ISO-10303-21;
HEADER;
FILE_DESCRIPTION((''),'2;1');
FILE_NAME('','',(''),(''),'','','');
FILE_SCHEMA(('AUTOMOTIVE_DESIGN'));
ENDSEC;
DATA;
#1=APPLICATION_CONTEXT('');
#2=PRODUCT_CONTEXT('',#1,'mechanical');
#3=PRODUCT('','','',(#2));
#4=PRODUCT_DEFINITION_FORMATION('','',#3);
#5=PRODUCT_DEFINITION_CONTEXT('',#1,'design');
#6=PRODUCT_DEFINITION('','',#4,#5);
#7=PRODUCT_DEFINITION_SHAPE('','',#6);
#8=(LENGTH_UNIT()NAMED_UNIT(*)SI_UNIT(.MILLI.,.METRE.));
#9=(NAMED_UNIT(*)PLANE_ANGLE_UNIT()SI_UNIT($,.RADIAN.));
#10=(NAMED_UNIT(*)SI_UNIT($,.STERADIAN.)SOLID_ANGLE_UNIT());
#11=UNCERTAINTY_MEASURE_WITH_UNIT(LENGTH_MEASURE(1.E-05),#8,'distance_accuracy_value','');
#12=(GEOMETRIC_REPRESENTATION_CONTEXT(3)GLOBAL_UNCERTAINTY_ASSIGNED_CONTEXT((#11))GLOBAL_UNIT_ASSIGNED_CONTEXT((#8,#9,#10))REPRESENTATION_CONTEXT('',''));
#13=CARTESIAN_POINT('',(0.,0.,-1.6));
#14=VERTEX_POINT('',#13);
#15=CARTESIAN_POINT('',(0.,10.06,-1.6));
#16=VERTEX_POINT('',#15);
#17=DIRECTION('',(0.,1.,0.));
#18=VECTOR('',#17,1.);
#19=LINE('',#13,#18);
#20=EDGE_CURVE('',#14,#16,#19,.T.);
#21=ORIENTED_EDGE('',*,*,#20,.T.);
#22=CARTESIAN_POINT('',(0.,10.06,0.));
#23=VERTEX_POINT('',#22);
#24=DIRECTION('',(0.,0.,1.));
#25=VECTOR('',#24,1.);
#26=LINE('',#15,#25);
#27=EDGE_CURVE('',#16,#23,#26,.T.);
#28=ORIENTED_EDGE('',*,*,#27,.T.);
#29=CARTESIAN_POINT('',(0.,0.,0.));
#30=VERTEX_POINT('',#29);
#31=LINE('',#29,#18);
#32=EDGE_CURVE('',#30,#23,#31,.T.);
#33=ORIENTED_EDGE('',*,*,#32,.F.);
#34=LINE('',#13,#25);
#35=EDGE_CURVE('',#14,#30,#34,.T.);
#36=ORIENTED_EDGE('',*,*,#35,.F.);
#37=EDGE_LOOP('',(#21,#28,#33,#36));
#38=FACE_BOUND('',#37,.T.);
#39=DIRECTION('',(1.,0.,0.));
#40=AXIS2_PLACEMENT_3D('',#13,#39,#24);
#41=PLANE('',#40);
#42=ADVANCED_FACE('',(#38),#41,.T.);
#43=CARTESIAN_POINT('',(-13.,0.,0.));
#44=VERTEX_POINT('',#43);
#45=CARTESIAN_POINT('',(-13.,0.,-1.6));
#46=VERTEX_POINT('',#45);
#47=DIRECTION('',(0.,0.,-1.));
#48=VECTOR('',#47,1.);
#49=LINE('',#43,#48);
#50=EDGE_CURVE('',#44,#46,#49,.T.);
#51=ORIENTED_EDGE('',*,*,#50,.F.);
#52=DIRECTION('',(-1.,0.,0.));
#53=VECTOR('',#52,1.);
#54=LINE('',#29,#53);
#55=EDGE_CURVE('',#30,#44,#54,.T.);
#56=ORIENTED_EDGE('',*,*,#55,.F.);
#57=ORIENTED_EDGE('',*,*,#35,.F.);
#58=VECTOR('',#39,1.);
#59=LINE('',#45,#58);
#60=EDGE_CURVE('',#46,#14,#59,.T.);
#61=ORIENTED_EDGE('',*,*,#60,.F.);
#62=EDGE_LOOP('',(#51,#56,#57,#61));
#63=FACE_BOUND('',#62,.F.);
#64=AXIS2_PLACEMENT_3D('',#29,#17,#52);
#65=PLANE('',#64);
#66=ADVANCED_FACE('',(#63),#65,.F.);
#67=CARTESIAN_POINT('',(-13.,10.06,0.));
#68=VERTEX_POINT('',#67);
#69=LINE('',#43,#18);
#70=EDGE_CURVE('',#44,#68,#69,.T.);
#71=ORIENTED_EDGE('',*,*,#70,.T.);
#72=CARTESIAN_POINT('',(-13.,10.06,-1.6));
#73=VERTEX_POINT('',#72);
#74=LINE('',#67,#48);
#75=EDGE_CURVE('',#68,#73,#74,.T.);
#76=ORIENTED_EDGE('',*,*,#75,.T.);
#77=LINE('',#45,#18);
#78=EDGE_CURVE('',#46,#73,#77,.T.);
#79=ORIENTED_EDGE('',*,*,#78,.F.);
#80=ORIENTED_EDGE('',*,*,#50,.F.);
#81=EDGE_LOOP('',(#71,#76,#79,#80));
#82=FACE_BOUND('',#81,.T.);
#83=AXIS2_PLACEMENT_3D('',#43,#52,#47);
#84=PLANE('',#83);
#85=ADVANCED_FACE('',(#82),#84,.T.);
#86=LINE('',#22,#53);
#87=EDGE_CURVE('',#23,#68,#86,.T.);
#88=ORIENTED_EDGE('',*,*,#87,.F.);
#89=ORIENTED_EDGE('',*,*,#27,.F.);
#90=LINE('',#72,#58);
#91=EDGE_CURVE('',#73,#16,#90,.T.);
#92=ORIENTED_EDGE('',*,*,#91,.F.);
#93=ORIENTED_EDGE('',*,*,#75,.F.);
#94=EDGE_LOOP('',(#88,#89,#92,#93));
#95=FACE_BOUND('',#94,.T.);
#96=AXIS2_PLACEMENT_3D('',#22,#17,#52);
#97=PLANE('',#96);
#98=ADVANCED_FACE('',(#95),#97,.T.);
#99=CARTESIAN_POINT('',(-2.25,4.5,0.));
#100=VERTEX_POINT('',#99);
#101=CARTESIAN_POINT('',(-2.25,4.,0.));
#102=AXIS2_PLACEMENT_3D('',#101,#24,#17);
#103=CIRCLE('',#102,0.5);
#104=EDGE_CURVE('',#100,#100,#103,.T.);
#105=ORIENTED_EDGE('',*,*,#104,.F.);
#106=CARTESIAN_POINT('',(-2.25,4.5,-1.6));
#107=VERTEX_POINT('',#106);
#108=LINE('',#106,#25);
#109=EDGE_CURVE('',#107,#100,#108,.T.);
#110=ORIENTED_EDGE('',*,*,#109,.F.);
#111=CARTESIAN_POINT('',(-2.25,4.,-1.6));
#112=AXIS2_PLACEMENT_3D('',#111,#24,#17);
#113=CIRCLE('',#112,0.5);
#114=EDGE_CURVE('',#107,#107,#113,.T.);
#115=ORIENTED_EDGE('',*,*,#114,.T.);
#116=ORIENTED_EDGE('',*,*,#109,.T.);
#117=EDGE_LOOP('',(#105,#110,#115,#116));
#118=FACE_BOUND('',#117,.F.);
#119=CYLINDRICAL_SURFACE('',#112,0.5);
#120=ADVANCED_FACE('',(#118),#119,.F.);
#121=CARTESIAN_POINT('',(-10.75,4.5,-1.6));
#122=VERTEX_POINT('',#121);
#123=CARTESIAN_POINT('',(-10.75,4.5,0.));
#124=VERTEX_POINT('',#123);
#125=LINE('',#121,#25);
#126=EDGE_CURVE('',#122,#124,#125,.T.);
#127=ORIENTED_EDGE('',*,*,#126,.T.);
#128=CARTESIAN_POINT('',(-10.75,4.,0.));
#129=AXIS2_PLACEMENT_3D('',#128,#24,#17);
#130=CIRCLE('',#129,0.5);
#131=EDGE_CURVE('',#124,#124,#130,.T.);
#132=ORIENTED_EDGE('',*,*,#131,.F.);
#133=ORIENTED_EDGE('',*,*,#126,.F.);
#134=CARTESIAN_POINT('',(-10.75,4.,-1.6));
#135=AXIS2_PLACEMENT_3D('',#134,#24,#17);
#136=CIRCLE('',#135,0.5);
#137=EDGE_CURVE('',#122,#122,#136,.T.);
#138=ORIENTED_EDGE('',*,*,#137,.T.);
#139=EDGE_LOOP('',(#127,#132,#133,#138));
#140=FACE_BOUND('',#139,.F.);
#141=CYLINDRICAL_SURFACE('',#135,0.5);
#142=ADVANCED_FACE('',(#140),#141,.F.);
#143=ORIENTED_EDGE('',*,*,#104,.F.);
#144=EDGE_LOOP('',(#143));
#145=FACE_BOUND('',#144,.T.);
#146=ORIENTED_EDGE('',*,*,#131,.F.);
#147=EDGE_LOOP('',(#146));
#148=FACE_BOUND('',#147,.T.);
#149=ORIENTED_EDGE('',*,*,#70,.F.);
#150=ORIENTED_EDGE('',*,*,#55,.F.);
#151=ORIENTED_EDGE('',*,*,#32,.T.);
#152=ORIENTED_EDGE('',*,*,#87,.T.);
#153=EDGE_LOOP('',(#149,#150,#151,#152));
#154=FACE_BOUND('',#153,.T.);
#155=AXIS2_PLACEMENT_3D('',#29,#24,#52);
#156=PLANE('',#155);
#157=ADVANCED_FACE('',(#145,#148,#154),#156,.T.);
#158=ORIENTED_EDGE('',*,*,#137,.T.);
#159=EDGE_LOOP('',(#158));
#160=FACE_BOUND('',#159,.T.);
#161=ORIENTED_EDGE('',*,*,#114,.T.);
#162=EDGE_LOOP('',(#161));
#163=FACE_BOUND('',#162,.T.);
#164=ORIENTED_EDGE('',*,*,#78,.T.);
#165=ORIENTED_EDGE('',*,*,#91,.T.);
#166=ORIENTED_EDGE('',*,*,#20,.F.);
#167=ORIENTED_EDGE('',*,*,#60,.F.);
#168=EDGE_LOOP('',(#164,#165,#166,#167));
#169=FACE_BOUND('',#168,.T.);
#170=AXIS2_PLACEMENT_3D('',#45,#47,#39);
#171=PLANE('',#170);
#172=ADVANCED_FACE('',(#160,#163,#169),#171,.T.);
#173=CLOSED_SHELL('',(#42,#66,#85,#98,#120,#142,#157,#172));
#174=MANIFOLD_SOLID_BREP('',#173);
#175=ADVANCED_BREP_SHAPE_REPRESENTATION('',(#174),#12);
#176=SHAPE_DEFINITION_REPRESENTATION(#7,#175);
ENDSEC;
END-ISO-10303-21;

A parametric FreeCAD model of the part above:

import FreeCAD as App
import Part
import Sketcher

doc = App.newDocument("Part")
params = doc.addObject("Spreadsheet::Sheet", "Params")
for row, (alias, value) in enumerate([
    ("sketch1_width", "13 mm"),
    ("sketch1_height", "1.6 mm"),
    ("pad1_length", "10.06 mm"),
    ("sketch2_diameter", "1 mm"),
    ("hole_diameter", "1 mm"),
], start=1):
    params.set(f"A{row}", alias)
    params.set(f"B{row}", "=" + value)
    params.setAlias(f"B{row}", alias)

body = doc.addObject("PartDesign::Body", "Body")

sketch1 = body.newObject("Sketcher::SketchObject", "Sketch")
sketch1.AttachmentSupport = (doc.getObject("XZ_Plane"), [""])
sketch1.MapMode = "FlatFace"
sketch1.addGeometry(Part.LineSegment(App.Vector(-13, 0, 0), App.Vector(0, 0, 0)), False)
sketch1.addGeometry(Part.LineSegment(App.Vector(0, 0, 0), App.Vector(0, -1.6, 0)), False)
sketch1.addGeometry(Part.LineSegment(App.Vector(0, -1.6, 0), App.Vector(-13, -1.6, 0)), False)
sketch1.addGeometry(Part.LineSegment(App.Vector(-13, -1.6, 0), App.Vector(-13, 0, 0)), False)
sketch1.addConstraint(Sketcher.Constraint("Coincident", 0, 2, 1, 1))
sketch1.addConstraint(Sketcher.Constraint("Coincident", 1, 2, 2, 1))
sketch1.addConstraint(Sketcher.Constraint("Coincident", 2, 2, 3, 1))
sketch1.addConstraint(Sketcher.Constraint("Coincident", 3, 2, 0, 1))
sketch1.addConstraint(Sketcher.Constraint("Horizontal", 0))
sketch1.addConstraint(Sketcher.Constraint("Vertical", 1))
sketch1.addConstraint(Sketcher.Constraint("Horizontal", 2))
sketch1.addConstraint(Sketcher.Constraint("Vertical", 3))
sketch1.addConstraint(Sketcher.Constraint("Coincident", 0, 2, -1, 1))
sketch1.addConstraint(Sketcher.Constraint("DistanceX", 0, 1, 0, 2, 13.0))
sketch1.addConstraint(Sketcher.Constraint("DistanceY", 1, 2, 1, 1, 1.6))
sketch1.setExpression("Constraints[9]", "Params.sketch1_width")
sketch1.setExpression("Constraints[10]", "Params.sketch1_height")
pad1 = body.newObject("PartDesign::Pad", "Pad")
pad1.Profile = sketch1
pad1.setExpression("Length", "Params.pad1_length")
pad1.Reversed = True

sketch2 = body.newObject("Sketcher::SketchObject", "Sketch001")
sketch2.AttachmentSupport = (doc.getObject("XY_Plane"), [""])
sketch2.MapMode = "FlatFace"
sketch2.AttachmentOffset = App.Placement(App.Vector(0, 0, -1.6), App.Rotation())
sketch2.addGeometry(Part.Circle(App.Vector(-2.25, 4, 0), App.Vector(0, 0, 1), 0.5), False)
sketch2.addGeometry(Part.Circle(App.Vector(-10.75, 4, 0), App.Vector(0, 0, 1), 0.5), False)
sketch2.addGeometry(Part.Circle(App.Vector(-10.75, 4, 0), App.Vector(0, 0, 1), 0.5), False)
sketch2.addConstraint(Sketcher.Constraint("Coincident", 2, 3, 1, 3))
sketch2.addConstraint(Sketcher.Constraint("Equal", 0, 1))
sketch2.addConstraint(Sketcher.Constraint("Equal", 1, 2))
sketch2.addConstraint(Sketcher.Constraint("Horizontal", 0, 3, 1, 3))
sketch2.addConstraint(Sketcher.Constraint("Diameter", 0, 1.0))
sketch2.addConstraint(Sketcher.Constraint("DistanceY", -1, 1, 0, 3, 4.0))
sketch2.addConstraint(Sketcher.Constraint("DistanceX", 1, 3, 0, 3, 8.5))
sketch2.addConstraint(Sketcher.Constraint("DistanceX", 0, 3, -1, 1, 2.25))
sketch2.setExpression("Constraints[4]", "Params.sketch2_diameter")
doc.recompute()
hole = body.newObject("PartDesign::Hole", "Hole")
hole.Profile = sketch2
hole.ThreadType = "None"
hole.setExpression("Diameter", "Params.hole_diameter")
hole.DepthType = "ThroughAll"
hole.Reversed = True

doc.recompute()
